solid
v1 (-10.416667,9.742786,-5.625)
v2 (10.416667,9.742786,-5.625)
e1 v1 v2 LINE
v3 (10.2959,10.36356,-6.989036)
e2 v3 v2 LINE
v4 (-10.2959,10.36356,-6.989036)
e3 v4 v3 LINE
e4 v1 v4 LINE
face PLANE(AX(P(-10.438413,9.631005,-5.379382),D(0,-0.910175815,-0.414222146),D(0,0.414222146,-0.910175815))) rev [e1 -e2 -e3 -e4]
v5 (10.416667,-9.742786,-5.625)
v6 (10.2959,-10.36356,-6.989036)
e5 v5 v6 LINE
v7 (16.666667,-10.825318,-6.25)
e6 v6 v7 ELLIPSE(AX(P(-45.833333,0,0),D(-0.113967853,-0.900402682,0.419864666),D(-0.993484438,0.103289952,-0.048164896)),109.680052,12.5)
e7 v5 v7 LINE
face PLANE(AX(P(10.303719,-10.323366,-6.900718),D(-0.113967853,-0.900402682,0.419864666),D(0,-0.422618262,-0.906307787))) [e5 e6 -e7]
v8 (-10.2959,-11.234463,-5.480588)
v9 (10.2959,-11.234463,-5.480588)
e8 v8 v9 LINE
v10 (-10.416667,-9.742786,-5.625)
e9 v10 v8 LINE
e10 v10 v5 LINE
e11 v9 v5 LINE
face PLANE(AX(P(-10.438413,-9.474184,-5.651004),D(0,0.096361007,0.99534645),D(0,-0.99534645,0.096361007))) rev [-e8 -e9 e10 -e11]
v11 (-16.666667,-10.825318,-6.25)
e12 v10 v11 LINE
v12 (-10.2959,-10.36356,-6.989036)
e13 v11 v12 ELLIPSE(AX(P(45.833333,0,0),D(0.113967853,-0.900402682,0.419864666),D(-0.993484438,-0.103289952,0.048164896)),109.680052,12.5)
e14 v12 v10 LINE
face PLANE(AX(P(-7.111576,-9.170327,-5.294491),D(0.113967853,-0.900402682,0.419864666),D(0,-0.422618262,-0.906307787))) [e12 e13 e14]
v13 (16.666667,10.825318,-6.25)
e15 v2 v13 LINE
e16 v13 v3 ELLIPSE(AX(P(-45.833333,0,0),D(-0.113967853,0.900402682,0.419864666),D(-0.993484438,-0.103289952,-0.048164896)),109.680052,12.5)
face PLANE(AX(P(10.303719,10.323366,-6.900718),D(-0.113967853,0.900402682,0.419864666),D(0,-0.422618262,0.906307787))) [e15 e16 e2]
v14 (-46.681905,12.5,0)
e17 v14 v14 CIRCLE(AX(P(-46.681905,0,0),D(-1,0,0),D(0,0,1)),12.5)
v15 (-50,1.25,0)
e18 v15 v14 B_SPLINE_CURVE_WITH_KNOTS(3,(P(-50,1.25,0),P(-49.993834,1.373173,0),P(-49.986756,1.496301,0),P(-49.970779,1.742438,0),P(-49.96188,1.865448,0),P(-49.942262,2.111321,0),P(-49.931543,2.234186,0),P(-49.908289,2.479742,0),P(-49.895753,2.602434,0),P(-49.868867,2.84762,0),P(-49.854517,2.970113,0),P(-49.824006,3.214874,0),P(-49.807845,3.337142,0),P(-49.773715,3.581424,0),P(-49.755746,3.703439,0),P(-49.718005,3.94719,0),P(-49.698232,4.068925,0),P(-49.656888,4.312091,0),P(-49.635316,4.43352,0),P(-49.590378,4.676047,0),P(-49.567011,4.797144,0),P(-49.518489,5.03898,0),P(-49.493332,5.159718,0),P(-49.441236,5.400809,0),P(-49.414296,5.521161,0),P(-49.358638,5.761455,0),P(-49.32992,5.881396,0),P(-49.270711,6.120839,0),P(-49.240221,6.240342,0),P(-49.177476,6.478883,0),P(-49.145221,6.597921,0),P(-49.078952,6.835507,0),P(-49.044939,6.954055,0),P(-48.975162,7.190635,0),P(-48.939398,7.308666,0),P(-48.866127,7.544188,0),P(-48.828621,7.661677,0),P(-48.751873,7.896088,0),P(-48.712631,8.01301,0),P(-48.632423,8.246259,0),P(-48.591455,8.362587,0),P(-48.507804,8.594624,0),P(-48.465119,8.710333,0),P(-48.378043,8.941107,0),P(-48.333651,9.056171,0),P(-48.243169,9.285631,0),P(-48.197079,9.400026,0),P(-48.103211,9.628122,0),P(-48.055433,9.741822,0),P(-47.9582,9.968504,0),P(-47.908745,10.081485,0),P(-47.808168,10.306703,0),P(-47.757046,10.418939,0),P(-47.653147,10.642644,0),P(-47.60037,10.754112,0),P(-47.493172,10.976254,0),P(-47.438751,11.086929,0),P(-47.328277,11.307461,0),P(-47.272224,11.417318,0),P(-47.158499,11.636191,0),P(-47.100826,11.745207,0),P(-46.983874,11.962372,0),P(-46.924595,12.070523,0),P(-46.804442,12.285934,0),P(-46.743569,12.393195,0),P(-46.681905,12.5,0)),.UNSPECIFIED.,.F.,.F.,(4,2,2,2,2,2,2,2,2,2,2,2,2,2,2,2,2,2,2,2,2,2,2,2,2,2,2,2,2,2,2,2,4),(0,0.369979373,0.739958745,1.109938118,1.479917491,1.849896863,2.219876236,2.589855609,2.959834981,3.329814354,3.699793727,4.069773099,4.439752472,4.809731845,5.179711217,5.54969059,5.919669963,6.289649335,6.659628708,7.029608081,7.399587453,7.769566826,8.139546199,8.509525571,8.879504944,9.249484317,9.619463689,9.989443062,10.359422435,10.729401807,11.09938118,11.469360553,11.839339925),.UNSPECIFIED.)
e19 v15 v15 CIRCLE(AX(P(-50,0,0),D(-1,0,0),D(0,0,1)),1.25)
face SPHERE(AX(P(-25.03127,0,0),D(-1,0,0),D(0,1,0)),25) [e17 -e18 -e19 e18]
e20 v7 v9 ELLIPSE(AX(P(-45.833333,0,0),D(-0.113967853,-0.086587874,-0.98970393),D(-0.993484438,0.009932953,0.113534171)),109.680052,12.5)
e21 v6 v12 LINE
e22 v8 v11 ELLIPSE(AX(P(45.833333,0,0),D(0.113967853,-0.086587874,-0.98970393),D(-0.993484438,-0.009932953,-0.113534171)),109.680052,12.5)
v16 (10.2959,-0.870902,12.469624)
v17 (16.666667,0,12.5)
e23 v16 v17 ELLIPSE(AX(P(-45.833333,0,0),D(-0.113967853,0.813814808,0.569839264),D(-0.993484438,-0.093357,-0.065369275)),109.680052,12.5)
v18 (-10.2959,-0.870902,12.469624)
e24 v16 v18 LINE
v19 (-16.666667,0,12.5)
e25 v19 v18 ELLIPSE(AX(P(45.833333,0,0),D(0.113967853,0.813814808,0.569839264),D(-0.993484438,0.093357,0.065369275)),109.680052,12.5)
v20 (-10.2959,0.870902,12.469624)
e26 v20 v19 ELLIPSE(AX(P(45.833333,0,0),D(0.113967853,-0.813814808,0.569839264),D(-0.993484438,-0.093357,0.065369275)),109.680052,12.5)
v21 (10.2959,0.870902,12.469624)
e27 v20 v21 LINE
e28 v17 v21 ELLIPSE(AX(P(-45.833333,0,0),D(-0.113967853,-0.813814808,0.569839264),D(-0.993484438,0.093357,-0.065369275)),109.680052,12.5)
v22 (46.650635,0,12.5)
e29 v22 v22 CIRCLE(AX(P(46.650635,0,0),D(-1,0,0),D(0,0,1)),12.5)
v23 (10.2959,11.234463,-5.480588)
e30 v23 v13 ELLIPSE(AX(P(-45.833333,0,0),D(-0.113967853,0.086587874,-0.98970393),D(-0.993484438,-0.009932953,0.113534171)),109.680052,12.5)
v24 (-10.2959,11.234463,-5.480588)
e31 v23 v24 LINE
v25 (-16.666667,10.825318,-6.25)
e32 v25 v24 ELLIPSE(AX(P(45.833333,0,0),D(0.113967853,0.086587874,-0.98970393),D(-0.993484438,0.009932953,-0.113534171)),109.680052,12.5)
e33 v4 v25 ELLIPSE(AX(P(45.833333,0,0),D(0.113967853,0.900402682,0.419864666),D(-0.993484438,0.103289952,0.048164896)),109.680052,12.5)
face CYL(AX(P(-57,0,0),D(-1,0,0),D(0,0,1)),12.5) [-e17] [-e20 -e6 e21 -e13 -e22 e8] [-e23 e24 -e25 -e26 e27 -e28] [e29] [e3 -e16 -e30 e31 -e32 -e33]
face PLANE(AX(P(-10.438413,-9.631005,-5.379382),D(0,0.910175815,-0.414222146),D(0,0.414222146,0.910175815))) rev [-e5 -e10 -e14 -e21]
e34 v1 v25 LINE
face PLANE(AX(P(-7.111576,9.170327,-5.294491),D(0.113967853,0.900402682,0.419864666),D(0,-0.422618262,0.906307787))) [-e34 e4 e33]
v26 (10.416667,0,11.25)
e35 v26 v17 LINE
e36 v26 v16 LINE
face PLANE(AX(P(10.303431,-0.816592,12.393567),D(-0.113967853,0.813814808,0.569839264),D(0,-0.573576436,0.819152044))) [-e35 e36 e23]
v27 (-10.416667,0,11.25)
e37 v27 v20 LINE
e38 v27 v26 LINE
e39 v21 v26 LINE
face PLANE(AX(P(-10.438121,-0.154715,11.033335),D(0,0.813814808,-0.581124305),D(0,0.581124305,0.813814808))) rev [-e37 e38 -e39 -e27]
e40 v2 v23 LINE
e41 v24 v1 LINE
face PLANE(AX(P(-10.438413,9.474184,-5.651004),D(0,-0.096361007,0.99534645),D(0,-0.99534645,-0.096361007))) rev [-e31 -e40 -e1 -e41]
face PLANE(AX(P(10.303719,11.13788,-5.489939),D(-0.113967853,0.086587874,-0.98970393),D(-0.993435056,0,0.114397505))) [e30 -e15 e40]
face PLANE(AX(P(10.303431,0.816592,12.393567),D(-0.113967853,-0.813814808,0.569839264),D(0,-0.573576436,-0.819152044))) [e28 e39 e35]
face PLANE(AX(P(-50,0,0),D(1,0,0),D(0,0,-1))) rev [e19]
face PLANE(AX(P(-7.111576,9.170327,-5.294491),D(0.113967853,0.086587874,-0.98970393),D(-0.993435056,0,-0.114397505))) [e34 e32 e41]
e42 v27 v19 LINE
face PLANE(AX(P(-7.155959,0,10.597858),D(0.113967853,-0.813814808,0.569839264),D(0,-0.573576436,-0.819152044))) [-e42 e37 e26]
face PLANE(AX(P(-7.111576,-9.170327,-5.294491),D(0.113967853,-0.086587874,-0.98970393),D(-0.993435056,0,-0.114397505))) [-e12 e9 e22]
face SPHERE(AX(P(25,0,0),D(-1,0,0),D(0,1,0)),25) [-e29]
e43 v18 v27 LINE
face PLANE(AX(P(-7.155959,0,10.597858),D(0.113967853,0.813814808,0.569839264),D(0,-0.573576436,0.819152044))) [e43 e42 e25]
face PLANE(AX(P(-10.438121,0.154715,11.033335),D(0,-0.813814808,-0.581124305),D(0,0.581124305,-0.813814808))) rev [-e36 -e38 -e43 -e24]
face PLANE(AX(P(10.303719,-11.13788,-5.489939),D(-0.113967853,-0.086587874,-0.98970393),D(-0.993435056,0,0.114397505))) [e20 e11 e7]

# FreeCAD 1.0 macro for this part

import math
import FreeCAD as App
import Part
import Sketcher

V = App.Vector
Q = App.Units.Quantity

doc = App.newDocument("Part")
body = doc.addObject("PartDesign::Body", "Body")

# Sketch on XY plane
sketch1 = doc.addObject("Sketcher::SketchObject", "Sketch")
body.addObject(sketch1)
sketch1.AttachmentSupport = (doc.XY_Plane, [""])
sketch1.MapMode = "FlatFace"
sketch1.addGeometry([
    Part.LineSegment(V(-50, 1.25, 0), V(-50, 0, 0)),  # 0
    Part.LineSegment(V(-50, 0, 0), V(50, 0, 0)),  # 1
    Part.ArcOfCircle(Part.Circle(V(25, 0, 0), V(0, 0, 1), 25), math.radians(0), math.radians(30)),  # 2
    Part.LineSegment(V(46.650635, 12.5, 0), V(-46.681905, 12.5, 0)),  # 3
    Part.ArcOfCircle(Part.Circle(V(-25.03127, 0, 0), V(0, 0, 1), 25), math.radians(150), math.radians(177.134016)),  # 4
], False)
sketch1.addConstraint([
    Sketcher.Constraint("Coincident", 0, 2, 1, 1),
    Sketcher.Constraint("Coincident", 1, 2, 2, 1),
    Sketcher.Constraint("Coincident", 2, 2, 3, 1),
    Sketcher.Constraint("Coincident", 3, 2, 4, 1),
    Sketcher.Constraint("Coincident", 4, 2, 0, 1),
    Sketcher.Constraint("Vertical", 0),
    Sketcher.Constraint("Horizontal", 1),
    Sketcher.Constraint("Horizontal", 3),
    Sketcher.Constraint("Equal", 2, 4),
    Sketcher.Constraint("Symmetric", 0, 2, 1, 2, -1, 1),
    Sketcher.Constraint("PointOnObject", 2, 3, -1),
    Sketcher.Constraint("PointOnObject", 4, 3, -1),
    Sketcher.Constraint("Radius", 2, 25.0),
    Sketcher.Constraint("DistanceX", 1, 1, 1, 2, 100.0),
    Sketcher.Constraint("DistanceY", 0, 2, 0, 1, 1.25),
    Sketcher.Constraint("DistanceY", -1, 1, 2, 2, 12.5),
])
revolution = doc.addObject("PartDesign::Revolution", "Revolution")
body.addObject(revolution)
revolution.Profile = sketch1
revolution.ReferenceAxis = (sketch1, ["H_Axis"])
revolution.Angle = 360

# Sketch on YZ plane
sketch2 = doc.addObject("Sketcher::SketchObject", "Sketch001")
body.addObject(sketch2)
sketch2.AttachmentSupport = (doc.YZ_Plane, [""])
sketch2.MapMode = "FlatFace"
sketch2.AttachmentOffset = App.Placement(V(0, 0, -16.666667), App.Rotation())
sketch2.addGeometry([
    Part.LineSegment(V(0, 12.5, 0), V(1.315241, 14.378359, 0)),
    Part.LineSegment(V(1.315241, 14.378359, 0), V(-1.315241, 14.378359, 0)),
    Part.LineSegment(V(-1.315241, 14.378359, 0), V(0, 12.5, 0)),
], False)
sketch2.addConstraint([
    Sketcher.Constraint("Coincident", 0, 2, 1, 1),
    Sketcher.Constraint("Coincident", 1, 2, 2, 1),
    Sketcher.Constraint("Coincident", 2, 2, 0, 1),
    Sketcher.Constraint("Horizontal", 1),
    Sketcher.Constraint("PointOnObject", 2, 2, -2),
    Sketcher.Constraint("Equal", 0, 2),
    Sketcher.Constraint("Angle", 0, Q("55 deg")),
    Sketcher.Constraint("DistanceY", -1, 1, 2, 2, 12.5),
    Sketcher.Constraint("DistanceX", 1, 2, 1, 1, 2.630482),
])

# Sketch on XZ plane
sketch3 = doc.addObject("Sketcher::SketchObject", "Sketch002")
body.addObject(sketch3)
sketch3.AttachmentSupport = (doc.XZ_Plane, [""])
sketch3.MapMode = "FlatFace"
sketch3.addGeometry([
    Part.LineSegment(V(-16.666667, 12.5, 0), V(-10.416667, 11.25, 0)),
    Part.LineSegment(V(-10.416667, 11.25, 0), V(10.416667, 11.25, 0)),
    Part.LineSegment(V(10.416667, 11.25, 0), V(16.666667, 12.5, 0)),
], False)
sketch3.addConstraint([
    Sketcher.Constraint("Coincident", 0, 2, 1, 1),
    Sketcher.Constraint("Coincident", 1, 2, 2, 1),
    Sketcher.Constraint("Horizontal", 1),
    Sketcher.Constraint("Symmetric", 0, 1, 2, 2, -2),
    Sketcher.Constraint("Equal", 0, 2),
    Sketcher.Constraint("DistanceY", -1, 1, 0, 1, 12.5),
    Sketcher.Constraint("DistanceY", -1, 1, 0, 2, 11.25),
    Sketcher.Constraint("DistanceX", 0, 1, 0, 2, 6.25),
    Sketcher.Constraint("DistanceX", 1, 1, 1, 2, 20.833333),
])
doc.recompute()

subtractivepipe = doc.addObject("PartDesign::SubtractivePipe", "SubtractivePipe")
body.addObject(subtractivepipe)
subtractivepipe.Profile = sketch2
subtractivepipe.Spine = (sketch3, ["Edge1", "Edge2", "Edge3"])
subtractivepipe.Transition = "Right corner"
doc.recompute()

polarpattern = doc.addObject("PartDesign::PolarPattern", "PolarPattern")
body.addObject(polarpattern)
polarpattern.Originals = [subtractivepipe]
polarpattern.Axis = (doc.X_Axis, [""])
polarpattern.Angle = 360
polarpattern.Occurrences = 3
body.Tip = polarpattern

doc.recompute()
